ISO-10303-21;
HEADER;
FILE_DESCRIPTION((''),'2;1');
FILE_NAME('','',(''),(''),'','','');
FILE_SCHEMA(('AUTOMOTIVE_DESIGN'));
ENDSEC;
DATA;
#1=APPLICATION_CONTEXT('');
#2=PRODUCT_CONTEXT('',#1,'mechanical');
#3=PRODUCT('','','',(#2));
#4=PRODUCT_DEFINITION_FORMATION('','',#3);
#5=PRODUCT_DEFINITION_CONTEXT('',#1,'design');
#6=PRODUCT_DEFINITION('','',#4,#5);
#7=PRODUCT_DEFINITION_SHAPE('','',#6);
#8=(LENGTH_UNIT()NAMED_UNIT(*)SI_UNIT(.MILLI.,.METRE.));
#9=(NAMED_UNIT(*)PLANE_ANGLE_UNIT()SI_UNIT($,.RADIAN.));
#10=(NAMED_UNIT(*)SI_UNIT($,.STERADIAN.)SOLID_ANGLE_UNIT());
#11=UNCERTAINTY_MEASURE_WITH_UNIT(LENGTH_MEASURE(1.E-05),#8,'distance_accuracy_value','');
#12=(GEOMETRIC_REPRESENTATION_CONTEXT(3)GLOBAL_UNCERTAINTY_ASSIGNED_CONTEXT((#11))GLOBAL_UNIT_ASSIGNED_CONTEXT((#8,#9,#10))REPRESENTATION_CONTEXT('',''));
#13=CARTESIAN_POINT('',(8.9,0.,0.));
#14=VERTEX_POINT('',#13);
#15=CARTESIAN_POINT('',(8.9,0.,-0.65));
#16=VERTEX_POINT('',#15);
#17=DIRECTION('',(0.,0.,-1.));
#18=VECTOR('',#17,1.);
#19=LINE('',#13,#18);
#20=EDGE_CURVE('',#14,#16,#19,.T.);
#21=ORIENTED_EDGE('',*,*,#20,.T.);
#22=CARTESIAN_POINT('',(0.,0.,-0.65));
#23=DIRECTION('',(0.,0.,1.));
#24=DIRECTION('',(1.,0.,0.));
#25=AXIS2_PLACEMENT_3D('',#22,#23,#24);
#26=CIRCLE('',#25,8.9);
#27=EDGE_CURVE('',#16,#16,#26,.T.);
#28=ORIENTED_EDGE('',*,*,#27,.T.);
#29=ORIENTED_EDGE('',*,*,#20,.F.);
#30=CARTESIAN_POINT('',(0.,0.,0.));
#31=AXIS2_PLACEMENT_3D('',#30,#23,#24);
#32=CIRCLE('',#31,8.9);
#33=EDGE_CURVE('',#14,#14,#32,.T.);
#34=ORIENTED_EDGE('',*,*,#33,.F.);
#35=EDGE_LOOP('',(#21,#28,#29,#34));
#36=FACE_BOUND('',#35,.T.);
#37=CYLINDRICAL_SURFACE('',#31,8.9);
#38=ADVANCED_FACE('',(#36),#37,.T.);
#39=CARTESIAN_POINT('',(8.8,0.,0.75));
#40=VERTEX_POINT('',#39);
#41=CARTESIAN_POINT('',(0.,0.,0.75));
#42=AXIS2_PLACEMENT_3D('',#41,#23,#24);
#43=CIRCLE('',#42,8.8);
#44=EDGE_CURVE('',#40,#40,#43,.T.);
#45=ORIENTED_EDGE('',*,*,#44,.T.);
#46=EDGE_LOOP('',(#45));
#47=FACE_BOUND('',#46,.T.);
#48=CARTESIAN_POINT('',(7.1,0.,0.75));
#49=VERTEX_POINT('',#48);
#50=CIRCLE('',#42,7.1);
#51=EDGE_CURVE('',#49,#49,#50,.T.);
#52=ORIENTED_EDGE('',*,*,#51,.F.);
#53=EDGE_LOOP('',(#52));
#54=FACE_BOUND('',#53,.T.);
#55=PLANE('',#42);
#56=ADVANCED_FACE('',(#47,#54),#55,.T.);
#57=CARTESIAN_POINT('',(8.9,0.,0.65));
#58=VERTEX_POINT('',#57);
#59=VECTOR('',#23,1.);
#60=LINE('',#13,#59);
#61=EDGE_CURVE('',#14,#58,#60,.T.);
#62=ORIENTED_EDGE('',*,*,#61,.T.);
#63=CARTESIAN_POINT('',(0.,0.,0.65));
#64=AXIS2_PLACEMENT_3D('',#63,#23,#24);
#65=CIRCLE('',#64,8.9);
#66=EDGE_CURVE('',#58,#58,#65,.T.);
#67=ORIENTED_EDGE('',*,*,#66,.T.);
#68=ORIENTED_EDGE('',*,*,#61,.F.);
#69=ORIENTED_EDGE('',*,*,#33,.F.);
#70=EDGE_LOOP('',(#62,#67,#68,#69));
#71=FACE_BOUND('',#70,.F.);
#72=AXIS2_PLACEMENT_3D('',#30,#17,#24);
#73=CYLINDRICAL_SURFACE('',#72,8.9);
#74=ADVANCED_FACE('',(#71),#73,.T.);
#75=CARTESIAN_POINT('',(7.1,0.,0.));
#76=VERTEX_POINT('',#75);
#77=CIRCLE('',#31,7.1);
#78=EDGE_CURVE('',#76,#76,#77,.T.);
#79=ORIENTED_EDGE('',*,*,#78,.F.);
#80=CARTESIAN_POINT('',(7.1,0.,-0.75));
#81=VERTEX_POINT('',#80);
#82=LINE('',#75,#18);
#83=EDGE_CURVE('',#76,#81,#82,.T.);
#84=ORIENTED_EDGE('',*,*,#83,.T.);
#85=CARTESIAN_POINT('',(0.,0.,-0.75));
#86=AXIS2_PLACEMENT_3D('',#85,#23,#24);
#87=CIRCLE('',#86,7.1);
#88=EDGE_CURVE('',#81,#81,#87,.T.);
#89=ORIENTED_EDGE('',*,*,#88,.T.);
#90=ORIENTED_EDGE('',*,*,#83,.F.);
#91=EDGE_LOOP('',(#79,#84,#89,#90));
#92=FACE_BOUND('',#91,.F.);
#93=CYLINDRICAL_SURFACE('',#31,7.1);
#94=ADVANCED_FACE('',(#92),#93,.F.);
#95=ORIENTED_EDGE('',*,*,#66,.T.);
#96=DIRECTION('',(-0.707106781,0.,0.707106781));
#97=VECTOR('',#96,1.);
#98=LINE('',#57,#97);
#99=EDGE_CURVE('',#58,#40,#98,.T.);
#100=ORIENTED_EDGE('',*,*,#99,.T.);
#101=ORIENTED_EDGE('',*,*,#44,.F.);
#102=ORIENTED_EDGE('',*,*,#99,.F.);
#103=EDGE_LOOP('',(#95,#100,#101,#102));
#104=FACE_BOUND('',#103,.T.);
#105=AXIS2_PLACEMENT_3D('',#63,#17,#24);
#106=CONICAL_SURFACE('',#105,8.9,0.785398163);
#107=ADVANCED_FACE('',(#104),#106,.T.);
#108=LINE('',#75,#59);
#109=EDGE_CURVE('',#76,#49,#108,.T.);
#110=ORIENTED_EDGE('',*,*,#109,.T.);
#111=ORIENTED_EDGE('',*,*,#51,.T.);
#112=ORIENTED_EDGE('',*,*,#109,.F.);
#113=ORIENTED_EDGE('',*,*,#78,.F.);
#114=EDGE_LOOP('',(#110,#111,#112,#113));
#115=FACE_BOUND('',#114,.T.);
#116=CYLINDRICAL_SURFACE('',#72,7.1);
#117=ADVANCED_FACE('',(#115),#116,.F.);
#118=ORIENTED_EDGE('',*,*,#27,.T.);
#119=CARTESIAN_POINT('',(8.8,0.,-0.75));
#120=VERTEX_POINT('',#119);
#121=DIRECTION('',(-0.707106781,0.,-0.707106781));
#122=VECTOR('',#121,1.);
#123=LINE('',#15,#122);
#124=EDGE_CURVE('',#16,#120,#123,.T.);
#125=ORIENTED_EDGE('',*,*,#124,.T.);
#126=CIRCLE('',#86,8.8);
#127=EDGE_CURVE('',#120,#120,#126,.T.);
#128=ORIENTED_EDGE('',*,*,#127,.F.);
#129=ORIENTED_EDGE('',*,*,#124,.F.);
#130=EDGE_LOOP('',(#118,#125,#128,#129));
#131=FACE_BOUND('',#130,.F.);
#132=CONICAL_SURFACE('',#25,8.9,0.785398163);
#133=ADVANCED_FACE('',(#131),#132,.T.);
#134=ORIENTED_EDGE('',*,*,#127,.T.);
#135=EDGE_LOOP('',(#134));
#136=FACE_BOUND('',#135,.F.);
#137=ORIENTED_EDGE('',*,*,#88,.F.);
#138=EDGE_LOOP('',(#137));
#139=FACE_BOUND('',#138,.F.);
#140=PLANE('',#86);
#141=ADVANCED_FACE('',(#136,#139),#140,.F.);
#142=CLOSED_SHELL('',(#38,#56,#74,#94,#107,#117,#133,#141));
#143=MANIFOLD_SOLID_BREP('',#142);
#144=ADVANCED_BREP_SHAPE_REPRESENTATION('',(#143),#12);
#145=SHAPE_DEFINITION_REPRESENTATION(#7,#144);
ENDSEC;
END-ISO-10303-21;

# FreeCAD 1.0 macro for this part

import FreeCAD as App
import Part
import Sketcher
from FreeCAD import Vector
Q = App.Units.Quantity


def edges_at(feature, points):
    """Names of the edges that pass closest to the given points."""
    edges = feature.Shape.Edges
    near = lambda p: min(range(len(edges)), key=lambda i: edges[i].distToShape(Part.Vertex(*p))[0])
    return sorted({f"Edge{near(p) + 1}" for p in points})

doc = App.newDocument("Part")
body = doc.addObject("PartDesign::Body", "Body")

# Sketch on XY plane
sketch1 = doc.addObject("Sketcher::SketchObject", "Sketch")
body.addObject(sketch1)
sketch1.AttachmentSupport = (doc.XY_Plane, [""])
sketch1.MapMode = "FlatFace"
sketch1.addGeometry([
    Part.Circle(Vector(0, 0, 0), Vector(0, 0, 1), 9),
    Part.Circle(Vector(0, 0, 0), Vector(0, 0, 1), 7),
], False)
sketch1.addConstraint([
    Sketcher.Constraint("Coincident", 0, 3, -1, 1),
    Sketcher.Constraint("Coincident", 1, 3, -1, 1),
    Sketcher.Constraint("Diameter", 0, Q("17.8 mm")),
    Sketcher.Constraint("Diameter", 1, Q("14.2 mm")),
])
pad1 = doc.addObject("PartDesign::Pad", "Pad")
body.addObject(pad1)
pad1.Profile = sketch1
pad1.Length = 1.5
pad1.Midplane = True
doc.recompute()

chamfer = doc.addObject("PartDesign::Chamfer", "Chamfer")
body.addObject(chamfer)
chamfer.Base = (pad1, edges_at(pad1, [(-8.9, 0, 0.75), (-8.9, 0, -0.75)]))
chamfer.Size = 0.1

doc.recompute()
